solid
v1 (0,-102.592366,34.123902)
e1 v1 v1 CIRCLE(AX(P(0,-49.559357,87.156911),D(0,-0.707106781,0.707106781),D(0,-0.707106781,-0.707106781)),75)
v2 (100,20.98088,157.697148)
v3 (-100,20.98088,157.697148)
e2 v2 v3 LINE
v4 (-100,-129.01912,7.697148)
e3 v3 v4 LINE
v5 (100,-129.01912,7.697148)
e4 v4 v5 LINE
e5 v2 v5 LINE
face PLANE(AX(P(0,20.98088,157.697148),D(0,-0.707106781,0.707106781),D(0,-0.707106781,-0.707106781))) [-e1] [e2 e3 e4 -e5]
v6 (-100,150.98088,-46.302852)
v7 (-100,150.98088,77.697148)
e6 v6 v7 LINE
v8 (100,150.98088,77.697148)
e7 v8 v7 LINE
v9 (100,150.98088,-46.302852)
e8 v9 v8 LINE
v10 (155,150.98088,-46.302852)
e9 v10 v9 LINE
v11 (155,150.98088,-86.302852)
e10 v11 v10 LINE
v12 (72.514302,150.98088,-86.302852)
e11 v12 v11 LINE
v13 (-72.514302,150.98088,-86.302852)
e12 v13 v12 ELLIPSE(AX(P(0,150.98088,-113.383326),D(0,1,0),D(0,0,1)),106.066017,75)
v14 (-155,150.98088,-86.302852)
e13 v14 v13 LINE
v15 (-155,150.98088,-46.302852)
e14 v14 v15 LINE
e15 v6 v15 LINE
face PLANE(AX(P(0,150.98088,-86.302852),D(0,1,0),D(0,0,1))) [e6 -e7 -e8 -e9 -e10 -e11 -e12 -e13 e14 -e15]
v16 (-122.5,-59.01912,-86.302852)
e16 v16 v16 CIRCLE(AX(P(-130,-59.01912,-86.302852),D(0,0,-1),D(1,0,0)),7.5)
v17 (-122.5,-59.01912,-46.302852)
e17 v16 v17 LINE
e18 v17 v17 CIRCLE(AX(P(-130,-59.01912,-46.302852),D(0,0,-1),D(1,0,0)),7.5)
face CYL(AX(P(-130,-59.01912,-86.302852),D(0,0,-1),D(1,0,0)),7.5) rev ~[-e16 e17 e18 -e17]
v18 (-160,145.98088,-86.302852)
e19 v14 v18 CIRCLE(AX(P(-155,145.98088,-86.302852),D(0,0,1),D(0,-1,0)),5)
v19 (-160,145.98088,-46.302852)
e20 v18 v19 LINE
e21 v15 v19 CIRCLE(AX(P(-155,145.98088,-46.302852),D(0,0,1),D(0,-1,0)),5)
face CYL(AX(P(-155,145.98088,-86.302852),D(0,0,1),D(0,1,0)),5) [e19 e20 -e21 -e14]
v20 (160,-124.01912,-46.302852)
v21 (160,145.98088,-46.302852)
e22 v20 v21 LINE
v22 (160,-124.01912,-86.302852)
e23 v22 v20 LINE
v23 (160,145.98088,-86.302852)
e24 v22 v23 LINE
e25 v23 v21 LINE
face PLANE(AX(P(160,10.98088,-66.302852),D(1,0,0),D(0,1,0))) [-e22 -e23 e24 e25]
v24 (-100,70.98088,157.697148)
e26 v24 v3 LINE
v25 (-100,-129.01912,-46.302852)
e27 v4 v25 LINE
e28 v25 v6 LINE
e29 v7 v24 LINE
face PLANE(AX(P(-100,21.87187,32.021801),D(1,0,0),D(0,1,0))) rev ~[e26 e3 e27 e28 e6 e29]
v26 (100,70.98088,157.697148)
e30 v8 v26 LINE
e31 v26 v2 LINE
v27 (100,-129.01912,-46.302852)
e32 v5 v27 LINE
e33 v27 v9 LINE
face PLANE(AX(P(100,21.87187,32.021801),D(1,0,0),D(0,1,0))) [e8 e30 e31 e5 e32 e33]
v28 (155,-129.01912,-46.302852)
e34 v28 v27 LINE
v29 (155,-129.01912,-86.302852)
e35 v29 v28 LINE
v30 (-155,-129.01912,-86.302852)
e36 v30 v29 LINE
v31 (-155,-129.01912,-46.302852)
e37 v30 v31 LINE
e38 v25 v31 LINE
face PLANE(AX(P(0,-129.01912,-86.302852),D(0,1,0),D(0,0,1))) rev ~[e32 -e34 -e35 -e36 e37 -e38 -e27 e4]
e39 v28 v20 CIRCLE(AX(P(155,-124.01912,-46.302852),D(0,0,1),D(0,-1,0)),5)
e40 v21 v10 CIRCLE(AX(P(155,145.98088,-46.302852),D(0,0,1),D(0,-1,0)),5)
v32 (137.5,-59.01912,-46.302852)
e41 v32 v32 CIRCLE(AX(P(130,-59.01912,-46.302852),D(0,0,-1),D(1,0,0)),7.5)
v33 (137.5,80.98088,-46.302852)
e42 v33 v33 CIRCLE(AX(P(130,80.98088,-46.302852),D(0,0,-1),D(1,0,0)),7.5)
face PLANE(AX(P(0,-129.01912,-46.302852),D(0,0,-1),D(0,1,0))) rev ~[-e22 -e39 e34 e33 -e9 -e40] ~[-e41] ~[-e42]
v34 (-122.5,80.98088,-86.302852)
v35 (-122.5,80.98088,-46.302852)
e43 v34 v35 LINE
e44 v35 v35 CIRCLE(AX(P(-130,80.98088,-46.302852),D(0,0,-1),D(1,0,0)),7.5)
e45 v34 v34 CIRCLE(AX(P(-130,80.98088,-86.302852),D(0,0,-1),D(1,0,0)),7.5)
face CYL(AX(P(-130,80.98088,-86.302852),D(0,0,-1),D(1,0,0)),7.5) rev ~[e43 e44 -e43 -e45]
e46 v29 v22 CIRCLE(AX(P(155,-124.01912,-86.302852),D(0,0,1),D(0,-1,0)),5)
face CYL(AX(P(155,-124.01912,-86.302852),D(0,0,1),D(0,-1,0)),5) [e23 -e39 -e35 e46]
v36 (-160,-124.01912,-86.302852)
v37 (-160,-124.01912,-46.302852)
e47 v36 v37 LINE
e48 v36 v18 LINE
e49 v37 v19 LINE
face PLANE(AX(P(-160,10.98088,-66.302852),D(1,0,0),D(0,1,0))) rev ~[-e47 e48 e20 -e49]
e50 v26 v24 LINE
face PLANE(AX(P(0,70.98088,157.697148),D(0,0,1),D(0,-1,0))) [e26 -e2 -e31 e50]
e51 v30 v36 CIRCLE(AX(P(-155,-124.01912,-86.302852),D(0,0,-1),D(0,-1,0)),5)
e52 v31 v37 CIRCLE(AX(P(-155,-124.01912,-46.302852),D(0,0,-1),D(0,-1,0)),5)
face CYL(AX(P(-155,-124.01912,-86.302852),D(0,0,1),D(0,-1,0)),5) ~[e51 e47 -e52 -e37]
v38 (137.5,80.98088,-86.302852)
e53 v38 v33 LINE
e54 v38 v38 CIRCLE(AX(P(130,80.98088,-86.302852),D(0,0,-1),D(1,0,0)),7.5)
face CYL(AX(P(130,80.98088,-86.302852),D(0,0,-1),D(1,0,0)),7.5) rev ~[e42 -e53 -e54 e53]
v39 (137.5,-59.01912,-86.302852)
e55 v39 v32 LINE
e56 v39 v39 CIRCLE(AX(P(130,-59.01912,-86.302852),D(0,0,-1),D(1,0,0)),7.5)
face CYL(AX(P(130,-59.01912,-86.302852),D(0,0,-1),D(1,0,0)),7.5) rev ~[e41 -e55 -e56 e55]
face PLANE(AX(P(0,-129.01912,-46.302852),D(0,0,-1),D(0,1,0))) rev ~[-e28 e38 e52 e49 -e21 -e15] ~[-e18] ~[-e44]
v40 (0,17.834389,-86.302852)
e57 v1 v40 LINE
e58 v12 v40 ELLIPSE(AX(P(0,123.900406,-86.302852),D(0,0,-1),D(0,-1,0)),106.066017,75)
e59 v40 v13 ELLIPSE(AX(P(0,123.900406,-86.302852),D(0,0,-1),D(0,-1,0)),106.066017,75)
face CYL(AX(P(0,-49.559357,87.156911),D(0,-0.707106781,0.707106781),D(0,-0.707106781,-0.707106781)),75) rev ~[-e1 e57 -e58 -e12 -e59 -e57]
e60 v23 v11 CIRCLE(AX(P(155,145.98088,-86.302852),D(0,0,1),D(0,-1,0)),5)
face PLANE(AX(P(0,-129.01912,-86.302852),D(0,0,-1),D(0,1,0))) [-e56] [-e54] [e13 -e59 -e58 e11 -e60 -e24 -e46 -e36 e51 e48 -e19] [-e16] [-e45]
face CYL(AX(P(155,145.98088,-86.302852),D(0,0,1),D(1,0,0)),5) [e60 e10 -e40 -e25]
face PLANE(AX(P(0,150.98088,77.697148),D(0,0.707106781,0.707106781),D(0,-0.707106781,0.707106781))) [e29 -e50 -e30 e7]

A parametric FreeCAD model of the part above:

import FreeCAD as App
import Part
import Sketcher

V = App.Vector
Q = App.Units.Quantity


def edges_at(feature, points):
    """Names of the edges that pass closest to the given points."""
    edges = feature.Shape.Edges
    near = lambda p: min(range(len(edges)), key=lambda i: edges[i].distToShape(Part.Vertex(*p))[0])
    return sorted({f"Edge{near(p) + 1}" for p in points})


def add_polygon(sketch, points):
    """Adds a closed chain of lines whose ends are joined by coincident constraints."""
    first, n = sketch.GeometryCount, len(points)
    for a, b in zip(points, points[1:] + points[:1]):
        sketch.addGeometry(Part.LineSegment(App.Vector(*a, 0), App.Vector(*b, 0)), False)
    for i in range(n):
        sketch.addConstraint(Sketcher.Constraint("Coincident", first + i, 2, first + (i + 1) % n, 1))

doc = App.newDocument("Part")
body = doc.addObject("PartDesign::Body", "Body")

sketch1 = body.newObject("Sketcher::SketchObject", "Sketch")
sketch1.AttachmentSupport = (doc.getObject("YZ_Plane"), [""])
sketch1.MapMode = "FlatFace"
add_polygon(sketch1, [(-129.01912, -46.302852), (-129.01912, -86.302852), (150.98088, -86.302852), (150.98088, -46.302852)])
sketch1.addConstraint([
    Sketcher.Constraint("Vertical", 0),
    Sketcher.Constraint("Horizontal", 1),
    Sketcher.Constraint("Vertical", 2),
    Sketcher.Constraint("Horizontal", 3),
    Sketcher.Constraint("DistanceX", 1, 1, 1, 2, 280.0),
    Sketcher.Constraint("DistanceY", 0, 2, 0, 1, 40.0),
    Sketcher.Constraint("DistanceX", 0, 2, -1, 1, 129.01912),
    Sketcher.Constraint("DistanceY", 0, 2, -1, 1, 86.302852),
])
pad1 = body.newObject("PartDesign::Pad", "Pad")
pad1.Profile = sketch1
pad1.Length = 320
pad1.Midplane = True
doc.recompute()

fillet = body.newObject("PartDesign::Fillet", "Fillet")
fillet.Base = (pad1, edges_at(pad1, [
    (160, -129.019, -66.303),
    (-160, -129.019, -66.303),
    (160, 150.981, -66.303),
    (-160, 150.981, -66.303),
]))
fillet.Radius = 5

sketch2 = body.newObject("Sketcher::SketchObject", "Sketch001")
sketch2.AttachmentSupport = (doc.getObject("XY_Plane"), [""])
sketch2.MapMode = "FlatFace"
sketch2.AttachmentOffset = App.Placement(V(0, 0, -86.302852), App.Rotation())
sketch2.addGeometry([
    Part.Circle(V(130, 80.98088, 0), V(0, 0, 1), 7.5),
    Part.Circle(V(130, -59.01912, 0), V(0, 0, 1), 7.5),
    Part.Circle(V(-130, 80.98088, 0), V(0, 0, 1), 7.5),
    Part.Circle(V(-130, -59.01912, 0), V(0, 0, 1), 7.5),
], False)
sketch2.addConstraint([
    Sketcher.Constraint("Equal", 0, 1),
    Sketcher.Constraint("Equal", 1, 2),
    Sketcher.Constraint("Equal", 2, 3),
    Sketcher.Constraint("Symmetric", 0, 3, 2, 3, -2),
    Sketcher.Constraint("Symmetric", 1, 3, 3, 3, -2),
    Sketcher.Constraint("Vertical", 0, 3, 1, 3),
    Sketcher.Constraint("Diameter", 0, 15.0),
    Sketcher.Constraint("DistanceX", -1, 1, 0, 3, 130.0),
    Sketcher.Constraint("DistanceY", 1, 3, 0, 3, 140.0),
    Sketcher.Constraint("DistanceY", -1, 1, 0, 3, 80.98088),
])
pocket1 = body.newObject("PartDesign::Pocket", "Pocket")
pocket1.Profile = sketch2
pocket1.Length = 50
pocket1.Reversed = True

sketch3 = body.newObject("Sketcher::SketchObject", "Sketch002")
sketch3.AttachmentSupport = (doc.getObject("YZ_Plane"), [""])
sketch3.MapMode = "FlatFace"
add_polygon(sketch3, [(20.98088, 157.697148), (-129.01912, 7.697148), (-129.01912, -46.302852), (150.98088, -46.302852), (150.98088, 77.697148), (70.98088, 157.697148)])
sketch3.addConstraint([
    Sketcher.Constraint("Vertical", 1),
    Sketcher.Constraint("Horizontal", 2),
    Sketcher.Constraint("Vertical", 3),
    Sketcher.Constraint("Horizontal", 5),
    Sketcher.Constraint("Perpendicular", 0, 4),
    Sketcher.Constraint("DistanceX", 2, 1, 2, 2, 280.0),
    Sketcher.Constraint("DistanceX", 5, 2, 5, 1, 50.0),
    Sketcher.Constraint("DistanceY", 1, 2, 1, 1, 54.0),
    Sketcher.Constraint("DistanceY", 3, 1, 3, 2, 124.0),
    Sketcher.Constraint("Angle", 0, Q("-135 deg")),
    Sketcher.Constraint("DistanceX", 0, 2, -1, 1, 129.01912),
    Sketcher.Constraint("DistanceY", -1, 1, 0, 2, 7.697148),
])
pad2 = body.newObject("PartDesign::Pad", "Pad001")
pad2.Profile = sketch3
pad2.Length = 200
pad2.Midplane = True

sketch4 = body.newObject("Sketcher::SketchObject", "Sketch003")
sketch4.Placement = App.Placement(V(0, -68.358134, 68.358134), App.Rotation(V(1, 0, 0), V(0, 0.707106781, 0.707106781), V(0, -0.707106781, 0.707106781), "ZXY"))
sketch4.addGeometry(Part.Circle(V(0, 26.585485, 0), V(0, 0, 1), 75), False)
sketch4.addConstraint([
    Sketcher.Constraint("PointOnObject", 0, 3, -2),
    Sketcher.Constraint("Diameter", 0, 150.0),
    Sketcher.Constraint("DistanceY", -1, 1, 0, 3, 26.585485),
])
pocket2 = body.newObject("PartDesign::Pocket", "Pocket001")
pocket2.Profile = sketch4
pocket2.Length = 81751

doc.recompute()
